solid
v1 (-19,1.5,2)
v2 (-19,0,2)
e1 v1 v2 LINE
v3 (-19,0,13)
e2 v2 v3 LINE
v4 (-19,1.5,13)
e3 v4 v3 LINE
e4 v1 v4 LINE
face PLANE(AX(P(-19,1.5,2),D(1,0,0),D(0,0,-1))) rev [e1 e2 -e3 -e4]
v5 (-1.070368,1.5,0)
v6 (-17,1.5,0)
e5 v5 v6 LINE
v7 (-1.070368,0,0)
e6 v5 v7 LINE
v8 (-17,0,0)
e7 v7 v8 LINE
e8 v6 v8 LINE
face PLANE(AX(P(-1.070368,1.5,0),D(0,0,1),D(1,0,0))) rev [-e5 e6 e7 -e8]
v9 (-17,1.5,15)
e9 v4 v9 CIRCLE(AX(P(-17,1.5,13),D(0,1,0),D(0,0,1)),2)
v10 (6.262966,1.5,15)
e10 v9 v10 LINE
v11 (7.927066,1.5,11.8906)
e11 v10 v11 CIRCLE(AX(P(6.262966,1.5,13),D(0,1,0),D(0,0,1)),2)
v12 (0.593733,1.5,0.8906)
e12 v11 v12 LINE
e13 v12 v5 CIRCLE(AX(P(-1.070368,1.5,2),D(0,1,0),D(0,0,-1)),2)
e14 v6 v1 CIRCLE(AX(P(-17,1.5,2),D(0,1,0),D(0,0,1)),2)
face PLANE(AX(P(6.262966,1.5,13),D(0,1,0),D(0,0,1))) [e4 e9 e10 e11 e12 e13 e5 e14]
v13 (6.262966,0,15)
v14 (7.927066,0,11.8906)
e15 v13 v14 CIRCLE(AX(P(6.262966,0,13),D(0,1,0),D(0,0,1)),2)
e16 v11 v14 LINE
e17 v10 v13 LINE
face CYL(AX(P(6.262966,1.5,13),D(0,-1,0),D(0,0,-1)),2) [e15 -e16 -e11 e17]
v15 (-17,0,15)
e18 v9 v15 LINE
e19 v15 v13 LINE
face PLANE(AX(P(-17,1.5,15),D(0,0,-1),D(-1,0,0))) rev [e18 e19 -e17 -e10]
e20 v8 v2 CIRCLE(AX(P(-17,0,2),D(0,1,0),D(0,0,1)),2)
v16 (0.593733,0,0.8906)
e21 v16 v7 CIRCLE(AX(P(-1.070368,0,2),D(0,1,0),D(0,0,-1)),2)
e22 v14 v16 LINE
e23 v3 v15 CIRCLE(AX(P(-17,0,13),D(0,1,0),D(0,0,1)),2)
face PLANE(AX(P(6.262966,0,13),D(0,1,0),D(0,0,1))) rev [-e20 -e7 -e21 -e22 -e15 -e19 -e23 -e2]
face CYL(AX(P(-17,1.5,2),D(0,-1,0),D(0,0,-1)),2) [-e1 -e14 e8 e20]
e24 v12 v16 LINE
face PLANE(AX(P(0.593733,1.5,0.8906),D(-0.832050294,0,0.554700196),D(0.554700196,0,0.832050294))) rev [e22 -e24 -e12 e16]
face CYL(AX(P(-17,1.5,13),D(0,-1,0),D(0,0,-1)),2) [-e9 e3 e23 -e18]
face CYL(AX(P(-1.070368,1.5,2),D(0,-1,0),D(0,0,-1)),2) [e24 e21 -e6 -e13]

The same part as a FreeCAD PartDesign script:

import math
import FreeCAD as App
import Part
import Sketcher
from FreeCAD import Vector
Q = App.Units.Quantity

doc = App.newDocument("Part")
body = doc.addObject("PartDesign::Body", "Body")

sketch1 = body.newObject("Sketcher::SketchObject", "Sketch")
sketch1.AttachmentSupport = (doc.getObject("XZ_Plane"), [""])
sketch1.MapMode = "FlatFace"
sketch1.addGeometry(Part.LineSegment(Vector(-1.1, 0, 0), Vector(-17, 0, 0)), False)
sketch1.addGeometry(Part.ArcOfCircle(Part.Circle(Vector(-17, 2, 0), Vector(0, 0, 1), 2), math.radians(-180), math.radians(-90)), False)
sketch1.addGeometry(Part.LineSegment(Vector(-19, 2, 0), Vector(-19, 13, 0)), False)
sketch1.addGeometry(Part.ArcOfCircle(Part.Circle(Vector(-17, 13, 0), Vector(0, 0, 1), 2), math.radians(90), math.radians(180)), False)
sketch1.addGeometry(Part.LineSegment(Vector(-17, 15, 0), Vector(6.3, 15, 0)), False)
sketch1.addGeometry(Part.ArcOfCircle(Part.Circle(Vector(6.3, 13, 0), Vector(0, 0, 1), 2), math.radians(-34), math.radians(90)), False)
sketch1.addGeometry(Part.LineSegment(Vector(7.9, 11.9, 0), Vector(0.6, 0.9, 0)), False)
sketch1.addGeometry(Part.ArcOfCircle(Part.Circle(Vector(-1.1, 2, 0), Vector(0, 0, 1), 2), math.radians(-90), math.radians(-34)), False)
sketch1.addConstraint(Sketcher.Constraint("Tangent", 0, 2, 1, 2))
sketch1.addConstraint(Sketcher.Constraint("Tangent", 1, 1, 2, 1))
sketch1.addConstraint(Sketcher.Constraint("Tangent", 2, 2, 3, 2))
sketch1.addConstraint(Sketcher.Constraint("Tangent", 3, 1, 4, 1))
sketch1.addConstraint(Sketcher.Constraint("Tangent", 4, 2, 5, 2))
sketch1.addConstraint(Sketcher.Constraint("Tangent", 5, 1, 6, 1))
sketch1.addConstraint(Sketcher.Constraint("Tangent", 6, 2, 7, 2))
sketch1.addConstraint(Sketcher.Constraint("Tangent", 7, 1, 0, 1))
sketch1.addConstraint(Sketcher.Constraint("Horizontal", 0))
sketch1.addConstraint(Sketcher.Constraint("Vertical", 2))
sketch1.addConstraint(Sketcher.Constraint("Horizontal", 4))
sketch1.addConstraint(Sketcher.Constraint("Equal", 1, 3))
sketch1.addConstraint(Sketcher.Constraint("Equal", 3, 5))
sketch1.addConstraint(Sketcher.Constraint("Equal", 5, 7))
sketch1.addConstraint(Sketcher.Constraint("PointOnObject", 0, 2, -1))
sketch1.addConstraint(Sketcher.Constraint("Radius", 1, Q("2 mm")))
sketch1.addConstraint(Sketcher.Constraint("DistanceY", 2, 1, 2, 2, Q("11 mm")))
sketch1.addConstraint(Sketcher.Constraint("DistanceX", 1, 3, -1, 1, Q("17 mm")))
sketch1.addConstraint(Sketcher.Constraint("DistanceY", -1, 1, 5, 1, Q("11.8906 mm")))
sketch1.addConstraint(Sketcher.Constraint("DistanceX", 0, 2, 0, 1, Q("15.929632 mm")))
pad1 = body.newObject("PartDesign::Pad", "Pad")
pad1.Profile = sketch1
pad1.Length = 1.5
pad1.Reversed = True

doc.recompute()
